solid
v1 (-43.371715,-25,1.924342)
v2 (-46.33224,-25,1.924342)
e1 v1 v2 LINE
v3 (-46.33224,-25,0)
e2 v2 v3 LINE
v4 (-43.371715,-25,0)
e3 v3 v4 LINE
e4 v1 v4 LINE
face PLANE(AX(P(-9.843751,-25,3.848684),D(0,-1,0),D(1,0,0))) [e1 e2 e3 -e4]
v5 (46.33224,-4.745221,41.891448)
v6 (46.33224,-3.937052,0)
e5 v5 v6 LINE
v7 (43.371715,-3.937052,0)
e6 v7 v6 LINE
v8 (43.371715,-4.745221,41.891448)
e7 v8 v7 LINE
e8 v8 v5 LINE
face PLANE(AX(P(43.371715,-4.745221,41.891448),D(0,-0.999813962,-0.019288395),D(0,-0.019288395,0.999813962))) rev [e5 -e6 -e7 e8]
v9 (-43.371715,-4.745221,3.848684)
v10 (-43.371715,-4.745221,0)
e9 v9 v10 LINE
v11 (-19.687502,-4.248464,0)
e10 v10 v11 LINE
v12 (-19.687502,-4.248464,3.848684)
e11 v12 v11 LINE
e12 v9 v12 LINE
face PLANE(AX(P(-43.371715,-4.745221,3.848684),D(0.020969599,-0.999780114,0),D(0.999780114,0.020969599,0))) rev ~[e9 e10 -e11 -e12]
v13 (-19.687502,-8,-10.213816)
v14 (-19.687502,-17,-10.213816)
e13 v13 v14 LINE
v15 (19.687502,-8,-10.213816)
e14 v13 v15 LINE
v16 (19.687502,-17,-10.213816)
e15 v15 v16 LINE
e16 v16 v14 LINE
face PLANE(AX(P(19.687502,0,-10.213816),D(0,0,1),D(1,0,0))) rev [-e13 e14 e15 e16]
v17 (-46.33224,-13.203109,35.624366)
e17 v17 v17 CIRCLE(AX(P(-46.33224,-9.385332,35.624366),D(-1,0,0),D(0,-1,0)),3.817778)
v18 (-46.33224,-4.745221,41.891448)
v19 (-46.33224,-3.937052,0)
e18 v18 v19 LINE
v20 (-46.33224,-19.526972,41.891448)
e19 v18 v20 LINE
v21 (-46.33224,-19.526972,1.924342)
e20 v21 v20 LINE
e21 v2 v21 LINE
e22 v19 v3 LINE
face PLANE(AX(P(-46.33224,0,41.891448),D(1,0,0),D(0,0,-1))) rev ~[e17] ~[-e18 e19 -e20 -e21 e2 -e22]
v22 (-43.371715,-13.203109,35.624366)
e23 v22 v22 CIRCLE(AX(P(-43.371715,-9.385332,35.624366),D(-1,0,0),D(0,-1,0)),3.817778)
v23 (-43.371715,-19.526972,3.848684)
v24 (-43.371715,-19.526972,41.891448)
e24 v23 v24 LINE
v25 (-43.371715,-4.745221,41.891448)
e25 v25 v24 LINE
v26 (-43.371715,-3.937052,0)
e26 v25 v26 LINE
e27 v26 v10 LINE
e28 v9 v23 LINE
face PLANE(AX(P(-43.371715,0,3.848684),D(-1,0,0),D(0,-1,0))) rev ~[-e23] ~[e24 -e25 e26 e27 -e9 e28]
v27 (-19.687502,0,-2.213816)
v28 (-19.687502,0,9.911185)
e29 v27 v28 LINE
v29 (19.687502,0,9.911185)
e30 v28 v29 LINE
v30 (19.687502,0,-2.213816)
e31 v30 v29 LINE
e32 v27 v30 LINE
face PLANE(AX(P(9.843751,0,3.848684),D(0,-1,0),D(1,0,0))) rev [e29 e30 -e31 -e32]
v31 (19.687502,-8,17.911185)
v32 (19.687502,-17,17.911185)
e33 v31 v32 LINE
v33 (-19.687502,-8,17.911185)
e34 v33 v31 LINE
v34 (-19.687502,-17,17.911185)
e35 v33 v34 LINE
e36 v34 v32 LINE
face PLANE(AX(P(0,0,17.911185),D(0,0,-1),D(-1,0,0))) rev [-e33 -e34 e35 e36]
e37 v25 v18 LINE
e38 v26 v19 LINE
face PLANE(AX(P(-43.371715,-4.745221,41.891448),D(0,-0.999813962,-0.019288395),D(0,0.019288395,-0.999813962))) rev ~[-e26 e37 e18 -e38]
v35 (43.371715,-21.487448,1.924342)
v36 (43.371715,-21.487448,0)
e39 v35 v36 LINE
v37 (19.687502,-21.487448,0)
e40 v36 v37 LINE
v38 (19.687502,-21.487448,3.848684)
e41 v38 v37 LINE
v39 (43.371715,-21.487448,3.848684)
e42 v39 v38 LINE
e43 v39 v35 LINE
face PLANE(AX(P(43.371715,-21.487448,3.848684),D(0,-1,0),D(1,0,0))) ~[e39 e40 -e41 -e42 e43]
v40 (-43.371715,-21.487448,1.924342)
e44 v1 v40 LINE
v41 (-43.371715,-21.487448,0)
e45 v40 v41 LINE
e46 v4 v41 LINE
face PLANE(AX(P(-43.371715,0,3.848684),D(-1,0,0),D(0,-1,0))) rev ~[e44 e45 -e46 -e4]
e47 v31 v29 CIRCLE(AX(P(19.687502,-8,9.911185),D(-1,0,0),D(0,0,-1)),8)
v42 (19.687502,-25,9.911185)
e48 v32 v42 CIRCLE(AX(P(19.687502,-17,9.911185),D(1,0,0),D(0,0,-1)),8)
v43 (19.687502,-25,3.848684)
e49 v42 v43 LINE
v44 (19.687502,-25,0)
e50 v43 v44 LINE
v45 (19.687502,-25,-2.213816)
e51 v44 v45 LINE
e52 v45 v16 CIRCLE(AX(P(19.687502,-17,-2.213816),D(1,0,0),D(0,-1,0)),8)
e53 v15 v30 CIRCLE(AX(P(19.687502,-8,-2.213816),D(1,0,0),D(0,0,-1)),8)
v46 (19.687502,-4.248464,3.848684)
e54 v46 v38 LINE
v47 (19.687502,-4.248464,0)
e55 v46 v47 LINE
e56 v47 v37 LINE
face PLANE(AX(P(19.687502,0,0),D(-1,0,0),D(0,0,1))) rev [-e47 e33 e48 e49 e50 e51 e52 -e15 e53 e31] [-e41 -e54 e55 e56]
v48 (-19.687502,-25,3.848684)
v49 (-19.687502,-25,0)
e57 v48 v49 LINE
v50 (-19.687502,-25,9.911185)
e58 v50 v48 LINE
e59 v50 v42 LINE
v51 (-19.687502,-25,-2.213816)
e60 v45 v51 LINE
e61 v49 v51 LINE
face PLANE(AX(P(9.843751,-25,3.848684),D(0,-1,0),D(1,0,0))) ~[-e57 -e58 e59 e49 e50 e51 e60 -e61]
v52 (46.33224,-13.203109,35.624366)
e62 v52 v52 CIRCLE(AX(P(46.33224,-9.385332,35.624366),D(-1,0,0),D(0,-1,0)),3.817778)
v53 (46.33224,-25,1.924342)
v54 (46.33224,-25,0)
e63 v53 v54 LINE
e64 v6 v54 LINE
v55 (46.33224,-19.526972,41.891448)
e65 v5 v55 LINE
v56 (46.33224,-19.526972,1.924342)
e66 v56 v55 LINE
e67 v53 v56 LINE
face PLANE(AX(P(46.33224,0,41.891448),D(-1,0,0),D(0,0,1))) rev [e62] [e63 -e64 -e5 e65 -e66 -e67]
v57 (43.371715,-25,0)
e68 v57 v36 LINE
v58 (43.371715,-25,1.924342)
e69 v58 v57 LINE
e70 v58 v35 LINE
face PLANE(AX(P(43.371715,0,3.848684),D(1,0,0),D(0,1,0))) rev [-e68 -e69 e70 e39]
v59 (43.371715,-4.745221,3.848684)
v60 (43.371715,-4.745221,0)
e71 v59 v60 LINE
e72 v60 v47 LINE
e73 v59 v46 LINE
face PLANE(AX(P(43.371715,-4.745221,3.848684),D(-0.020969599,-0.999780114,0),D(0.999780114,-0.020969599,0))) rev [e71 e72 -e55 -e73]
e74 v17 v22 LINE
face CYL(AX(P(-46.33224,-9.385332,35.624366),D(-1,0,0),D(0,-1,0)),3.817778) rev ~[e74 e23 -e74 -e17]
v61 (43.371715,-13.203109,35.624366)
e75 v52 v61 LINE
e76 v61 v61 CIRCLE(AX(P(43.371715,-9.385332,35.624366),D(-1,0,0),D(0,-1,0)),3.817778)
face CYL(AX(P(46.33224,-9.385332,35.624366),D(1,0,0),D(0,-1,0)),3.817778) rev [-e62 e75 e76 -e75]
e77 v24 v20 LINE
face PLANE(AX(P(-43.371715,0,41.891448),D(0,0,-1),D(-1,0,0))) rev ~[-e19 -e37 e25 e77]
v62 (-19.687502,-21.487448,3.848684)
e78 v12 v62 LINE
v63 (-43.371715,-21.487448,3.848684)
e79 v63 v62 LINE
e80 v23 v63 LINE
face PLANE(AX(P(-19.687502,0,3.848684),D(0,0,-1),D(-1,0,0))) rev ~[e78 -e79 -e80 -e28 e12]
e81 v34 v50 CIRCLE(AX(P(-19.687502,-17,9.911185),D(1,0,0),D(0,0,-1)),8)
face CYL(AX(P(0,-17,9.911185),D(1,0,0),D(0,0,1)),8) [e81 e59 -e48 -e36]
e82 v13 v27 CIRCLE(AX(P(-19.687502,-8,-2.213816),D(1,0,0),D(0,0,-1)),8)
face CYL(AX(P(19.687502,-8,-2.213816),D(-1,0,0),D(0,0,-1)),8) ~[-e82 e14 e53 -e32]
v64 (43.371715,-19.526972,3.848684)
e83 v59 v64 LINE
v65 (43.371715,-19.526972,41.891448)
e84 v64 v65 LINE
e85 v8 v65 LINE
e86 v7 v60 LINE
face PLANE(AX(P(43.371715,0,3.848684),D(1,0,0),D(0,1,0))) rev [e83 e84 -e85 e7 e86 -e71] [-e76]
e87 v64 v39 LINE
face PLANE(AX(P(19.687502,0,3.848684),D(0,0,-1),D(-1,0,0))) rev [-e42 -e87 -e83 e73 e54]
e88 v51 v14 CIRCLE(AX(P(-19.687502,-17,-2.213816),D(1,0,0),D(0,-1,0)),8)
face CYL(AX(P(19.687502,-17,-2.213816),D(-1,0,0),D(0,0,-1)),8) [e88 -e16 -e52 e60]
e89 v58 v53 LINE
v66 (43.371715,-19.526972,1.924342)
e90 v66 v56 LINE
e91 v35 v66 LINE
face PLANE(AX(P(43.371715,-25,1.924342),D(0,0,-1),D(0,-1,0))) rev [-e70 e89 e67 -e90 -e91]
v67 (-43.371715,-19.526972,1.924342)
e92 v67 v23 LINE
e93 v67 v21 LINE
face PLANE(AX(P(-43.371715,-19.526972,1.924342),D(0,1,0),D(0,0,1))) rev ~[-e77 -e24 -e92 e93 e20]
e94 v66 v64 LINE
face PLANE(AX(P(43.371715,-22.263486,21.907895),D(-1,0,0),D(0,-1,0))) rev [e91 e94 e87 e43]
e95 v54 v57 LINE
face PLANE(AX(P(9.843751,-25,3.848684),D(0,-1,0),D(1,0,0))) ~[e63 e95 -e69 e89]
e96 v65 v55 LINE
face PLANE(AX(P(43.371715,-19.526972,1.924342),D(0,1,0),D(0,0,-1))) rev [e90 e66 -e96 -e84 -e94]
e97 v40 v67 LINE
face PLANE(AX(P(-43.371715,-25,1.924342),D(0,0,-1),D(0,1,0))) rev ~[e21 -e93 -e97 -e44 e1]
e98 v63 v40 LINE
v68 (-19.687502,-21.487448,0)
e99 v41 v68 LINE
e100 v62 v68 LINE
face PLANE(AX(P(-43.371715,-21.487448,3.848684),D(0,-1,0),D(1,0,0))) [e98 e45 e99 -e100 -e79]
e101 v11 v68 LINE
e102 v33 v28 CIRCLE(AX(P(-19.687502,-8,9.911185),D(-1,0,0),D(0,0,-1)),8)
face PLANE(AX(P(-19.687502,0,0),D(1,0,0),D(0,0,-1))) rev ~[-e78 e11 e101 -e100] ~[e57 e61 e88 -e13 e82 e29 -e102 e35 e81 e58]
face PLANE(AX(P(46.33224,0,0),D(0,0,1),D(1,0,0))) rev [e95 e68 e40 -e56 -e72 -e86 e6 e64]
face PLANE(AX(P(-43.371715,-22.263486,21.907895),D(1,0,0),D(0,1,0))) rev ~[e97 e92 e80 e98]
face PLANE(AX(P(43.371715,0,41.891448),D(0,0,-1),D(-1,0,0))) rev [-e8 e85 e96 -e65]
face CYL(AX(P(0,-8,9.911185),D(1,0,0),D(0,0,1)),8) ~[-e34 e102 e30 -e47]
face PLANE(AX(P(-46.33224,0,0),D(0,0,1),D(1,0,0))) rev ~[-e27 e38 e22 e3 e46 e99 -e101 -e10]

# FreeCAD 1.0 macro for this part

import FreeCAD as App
import Part
import Sketcher
from FreeCAD import Vector


def edges_at(feature, points):
    """Names of the edges that pass closest to the given points."""
    edges = feature.Shape.Edges
    near = lambda p: min(range(len(edges)), key=lambda i: edges[i].distToShape(Part.Vertex(*p))[0])
    return sorted({f"Edge{near(p) + 1}" for p in points})


def add_polygon(sketch, points):
    """Adds a closed chain of lines whose ends are joined by coincident constraints."""
    first, n = sketch.GeometryCount, len(points)
    for a, b in zip(points, points[1:] + points[:1]):
        sketch.addGeometry(Part.LineSegment(App.Vector(*a, 0), App.Vector(*b, 0)), False)
    for i in range(n):
        sketch.addConstraint(Sketcher.Constraint("Coincident", first + i, 2, first + (i + 1) % n, 1))

doc = App.newDocument("Part")
body = doc.addObject("PartDesign::Body", "Body")

sketch1 = body.newObject("Sketcher::SketchObject", "Sketch")
sketch1.AttachmentSupport = (doc.getObject("XZ_Plane"), [""])
sketch1.MapMode = "FlatFace"
add_polygon(sketch1, [(0, -10.2), (0, 17.9), (-19.7, 17.9), (-19.7, 3.8), (-43.4, 3.8), (-43.4, 41.9), (-46.3, 41.9), (-46.3, 0), (-19.7, 0), (-19.7, -10.2)])
sketch1.addConstraint(Sketcher.Constraint("Vertical", 0))
sketch1.addConstraint(Sketcher.Constraint("Horizontal", 1))
sketch1.addConstraint(Sketcher.Constraint("Vertical", 2))
sketch1.addConstraint(Sketcher.Constraint("Horizontal", 3))
sketch1.addConstraint(Sketcher.Constraint("Vertical", 4))
sketch1.addConstraint(Sketcher.Constraint("Horizontal", 5))
sketch1.addConstraint(Sketcher.Constraint("Vertical", 6))
sketch1.addConstraint(Sketcher.Constraint("Horizontal", 7))
sketch1.addConstraint(Sketcher.Constraint("Vertical", 8))
sketch1.addConstraint(Sketcher.Constraint("Horizontal", 9))
sketch1.addConstraint(Sketcher.Constraint("PointOnObject", 0, 2, -2))
sketch1.addConstraint(Sketcher.Constraint("PointOnObject", 6, 2, -1))
sketch1.addConstraint(Sketcher.Constraint("Vertical", 2, 2, 7, 2))
sketch1.addConstraint(Sketcher.Constraint("DistanceY", 0, 1, 0, 2, 28.125))
sketch1.addConstraint(Sketcher.Constraint("DistanceX", 1, 2, 1, 1, 19.687502))
sketch1.addConstraint(Sketcher.Constraint("DistanceY", 2, 2, 2, 1, 14.0625))
sketch1.addConstraint(Sketcher.Constraint("DistanceX", 7, 1, 7, 2, 26.644738))
sketch1.addConstraint(Sketcher.Constraint("DistanceY", 6, 2, 6, 1, 41.891448))
sketch1.addConstraint(Sketcher.Constraint("DistanceX", 3, 2, 3, 1, 23.684213))
sketch1.addConstraint(Sketcher.Constraint("DistanceY", 4, 1, 4, 2, 38.042764))
pad1 = body.newObject("PartDesign::Pad", "Pad")
pad1.Profile = sketch1
pad1.Length = 25
doc.recompute()

fillet = body.newObject("PartDesign::Fillet", "Fillet")
fillet.Base = (pad1, edges_at(pad1, [
    (-9.844, 0, 17.911),
    (-9.844, 0, -10.214),
    (-9.844, -25, -10.214),
    (-9.844, -25, 17.911),
]))
fillet.Radius = 8

sketch2 = body.newObject("Sketcher::SketchObject", "Sketch001")
sketch2.AttachmentSupport = (doc.getObject("XY_Plane"), [""])
sketch2.MapMode = "FlatFace"
sketch2.AttachmentOffset = App.Placement(Vector(0, 0, 3.848684), App.Rotation())
add_polygon(sketch2, [(-43.4, -21.5), (-43.4, -25), (-19.7, -25), (-19.7, -21.5)])
add_polygon(sketch2, [(-43.4, -4.7), (-19.7, -4.2), (-19.7, 0), (-43.4, 0)])
sketch2.addConstraint(Sketcher.Constraint("Vertical", 0))
sketch2.addConstraint(Sketcher.Constraint("Horizontal", 1))
sketch2.addConstraint(Sketcher.Constraint("Vertical", 2))
sketch2.addConstraint(Sketcher.Constraint("Horizontal", 3))
sketch2.addConstraint(Sketcher.Constraint("Vertical", 5))
sketch2.addConstraint(Sketcher.Constraint("Horizontal", 6))
sketch2.addConstraint(Sketcher.Constraint("Vertical", 7))
sketch2.addConstraint(Sketcher.Constraint("PointOnObject", 5, 2, -1))
sketch2.addConstraint(Sketcher.Constraint("Vertical", 2, 2, 4, 2))
sketch2.addConstraint(Sketcher.Constraint("Vertical", 3, 2, 6, 2))
sketch2.addConstraint(Sketcher.Constraint("DistanceY", 0, 2, -1, 1, 25.0))
sketch2.addConstraint(Sketcher.Constraint("DistanceY", 0, 2, 0, 1, 3.512552))
sketch2.addConstraint(Sketcher.Constraint("DistanceY", 7, 2, 7, 1, 4.745221))
sketch2.addConstraint(Sketcher.Constraint("DistanceX", 1, 2, -1, 1, 19.687502))
sketch2.addConstraint(Sketcher.Constraint("Distance", 4, 23.689422))
sketch2.addConstraint(Sketcher.Constraint("DistanceX", 1, 1, 1, 2, 23.684213))
pocket1 = body.newObject("PartDesign::Pocket", "Pocket")
pocket1.Profile = sketch2
pocket1.Length = 25

sketch3 = body.newObject("Sketcher::SketchObject", "Sketch002")
sketch3.AttachmentSupport = (doc.getObject("YZ_Plane"), [""])
sketch3.MapMode = "FlatFace"
sketch3.AttachmentOffset = App.Placement(Vector(0, 0, -43.371715), App.Rotation())
add_polygon(sketch3, [(-25, 41.9), (-25, 1.9), (-19.5, 1.9), (-19.5, 41.9)])
add_polygon(sketch3, [(0, 41.9), (-4.7, 41.9), (-3.9, 0), (0, 0)])
sketch3.addConstraint(Sketcher.Constraint("Vertical", 0))
sketch3.addConstraint(Sketcher.Constraint("Horizontal", 1))
sketch3.addConstraint(Sketcher.Constraint("Vertical", 2))
sketch3.addConstraint(Sketcher.Constraint("Horizontal", 3))
sketch3.addConstraint(Sketcher.Constraint("Horizontal", 4))
sketch3.addConstraint(Sketcher.Constraint("Horizontal", 6))
sketch3.addConstraint(Sketcher.Constraint("Vertical", 7))
sketch3.addConstraint(Sketcher.Constraint("Coincident", 6, 2, -1, 1))
sketch3.addConstraint(Sketcher.Constraint("Horizontal", 3, 2, 4, 2))
sketch3.addConstraint(Sketcher.Constraint("DistanceX", 0, 2, -1, 1, 25.0))
sketch3.addConstraint(Sketcher.Constraint("DistanceX", 1, 1, 1, 2, 5.473028))
sketch3.addConstraint(Sketcher.Constraint("DistanceX", 4, 2, 4, 1, 4.745221))
sketch3.addConstraint(Sketcher.Constraint("DistanceY", 7, 1, 7, 2, 41.891448))
sketch3.addConstraint(Sketcher.Constraint("DistanceX", 6, 1, 6, 2, 3.937052))
sketch3.addConstraint(Sketcher.Constraint("DistanceY", 0, 2, 0, 1, 39.967106))
pocket2 = body.newObject("PartDesign::Pocket", "Pocket001")
pocket2.Profile = sketch3
pocket2.Length = 25

sketch4 = body.newObject("Sketcher::SketchObject", "Sketch003")
sketch4.AttachmentSupport = (doc.getObject("YZ_Plane"), [""])
sketch4.MapMode = "FlatFace"
sketch4.AttachmentOffset = App.Placement(Vector(0, 0, -46.33224), App.Rotation())
sketch4.addGeometry(Part.Circle(Vector(-9.4, 35.6, 0), Vector(0, 0, 1), 3.8), False)
sketch4.addConstraint(Sketcher.Constraint("Diameter", 0, 7.635556))
sketch4.addConstraint(Sketcher.Constraint("DistanceX", 0, 3, -1, 1, 9.385332))
sketch4.addConstraint(Sketcher.Constraint("DistanceY", -1, 1, 0, 3, 35.624366))
pocket3 = body.newObject("PartDesign::Pocket", "Pocket002")
pocket3.Profile = sketch4
pocket3.Length = 25
pocket3.Reversed = True
body2 = doc.addObject("PartDesign::Body", "Body001")
doc.recompute()

body2.BaseFeature = body
doc.recompute()

mirroring = doc.addObject("Part::Mirroring", "Mirroring")
mirroring.Source = body
mirroring.Base = Vector(0, 0, 0)
mirroring.Normal = Vector(1, 0, 0)
body3 = doc.addObject("PartDesign::Body", "Body002")
body3.BaseFeature = mirroring
boolean = body2.newObject("PartDesign::Boolean", "Boolean")
boolean.Type = "Fuse"
boolean.addObjects([body3])
doc.recompute()
mirroring.Visibility = False

doc.recompute()
